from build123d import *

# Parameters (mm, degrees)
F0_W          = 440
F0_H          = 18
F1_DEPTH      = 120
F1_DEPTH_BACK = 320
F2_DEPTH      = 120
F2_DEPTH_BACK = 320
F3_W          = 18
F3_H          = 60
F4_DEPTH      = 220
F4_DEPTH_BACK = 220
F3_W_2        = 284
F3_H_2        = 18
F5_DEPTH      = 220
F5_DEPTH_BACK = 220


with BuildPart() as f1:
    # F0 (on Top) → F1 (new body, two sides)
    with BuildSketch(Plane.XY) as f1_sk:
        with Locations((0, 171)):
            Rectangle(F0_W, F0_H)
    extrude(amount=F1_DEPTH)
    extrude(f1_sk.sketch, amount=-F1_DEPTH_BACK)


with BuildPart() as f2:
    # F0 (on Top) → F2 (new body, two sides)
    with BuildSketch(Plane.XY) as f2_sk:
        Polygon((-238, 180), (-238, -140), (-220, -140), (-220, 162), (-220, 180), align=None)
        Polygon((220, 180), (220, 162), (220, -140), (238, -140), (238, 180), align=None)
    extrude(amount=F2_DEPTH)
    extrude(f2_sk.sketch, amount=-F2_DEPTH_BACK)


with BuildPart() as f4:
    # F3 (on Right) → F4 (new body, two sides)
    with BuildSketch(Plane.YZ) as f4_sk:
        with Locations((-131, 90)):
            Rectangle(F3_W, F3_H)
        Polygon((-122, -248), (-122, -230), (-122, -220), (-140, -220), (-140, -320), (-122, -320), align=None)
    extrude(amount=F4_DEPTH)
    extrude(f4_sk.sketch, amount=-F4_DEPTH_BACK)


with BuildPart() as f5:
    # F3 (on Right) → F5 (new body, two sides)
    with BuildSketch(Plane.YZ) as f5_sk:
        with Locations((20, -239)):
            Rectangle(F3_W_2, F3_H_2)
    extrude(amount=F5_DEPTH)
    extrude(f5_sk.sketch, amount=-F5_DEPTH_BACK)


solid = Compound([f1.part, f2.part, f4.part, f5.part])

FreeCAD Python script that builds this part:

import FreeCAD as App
import Part
import Sketcher

V = App.Vector
Q = App.Units.Quantity

doc = App.newDocument("Part")
body = doc.addObject("PartDesign::Body", "Body")

sketch1 = body.newObject("Sketcher::SketchObject", "Sketch")
sketch1.AttachmentSupport = (doc.getObject("XY_Plane"), [""])
sketch1.MapMode = "FlatFace"
sketch1.addGeometry(Part.LineSegment(V(-220, 180, 0), V(-220, 162, 0)), False)
sketch1.addGeometry(Part.LineSegment(V(-220, 162, 0), V(220, 162, 0)), False)
sketch1.addGeometry(Part.LineSegment(V(220, 162, 0), V(220, 180, 0)), False)
sketch1.addGeometry(Part.LineSegment(V(220, 180, 0), V(-220, 180, 0)), False)
sketch1.addConstraint(Sketcher.Constraint("Coincident", 0, 2, 1, 1))
sketch1.addConstraint(Sketcher.Constraint("Coincident", 1, 2, 2, 1))
sketch1.addConstraint(Sketcher.Constraint("Coincident", 2, 2, 3, 1))
sketch1.addConstraint(Sketcher.Constraint("Coincident", 3, 2, 0, 1))
sketch1.addConstraint(Sketcher.Constraint("Vertical", 0))
sketch1.addConstraint(Sketcher.Constraint("Horizontal", 1))
sketch1.addConstraint(Sketcher.Constraint("Vertical", 2))
sketch1.addConstraint(Sketcher.Constraint("Horizontal", 3))
sketch1.addConstraint(Sketcher.Constraint("DistanceX", 1, 1, 1, 2, Q("440 mm")))
sketch1.addConstraint(Sketcher.Constraint("DistanceY", 0, 2, 0, 1, Q("18 mm")))
sketch1.addConstraint(Sketcher.Constraint("DistanceX", 0, 2, -1, 1, Q("220 mm")))
sketch1.addConstraint(Sketcher.Constraint("DistanceY", -1, 1, 0, 2, Q("162 mm")))
pad1 = body.newObject("PartDesign::Pad", "Pad")
pad1.Profile = sketch1
pad1.Type = "TwoLengths"
pad1.Length = 120
pad1.Length2 = 320
body2 = doc.addObject("PartDesign::Body", "Body001")
body2.AllowCompound = True

sketch2 = body2.newObject("Sketcher::SketchObject", "Sketch001")
sketch2.AttachmentSupport = (doc.getObject("XY_Plane001"), [""])
sketch2.MapMode = "FlatFace"
sketch2.addGeometry(Part.LineSegment(V(-238, 180, 0), V(-238, -140, 0)), False)
sketch2.addGeometry(Part.LineSegment(V(-238, -140, 0), V(-220, -140, 0)), False)
sketch2.addGeometry(Part.LineSegment(V(-220, -140, 0), V(-220, 180, 0)), False)
sketch2.addGeometry(Part.LineSegment(V(-220, 180, 0), V(-238, 180, 0)), False)
sketch2.addGeometry(Part.LineSegment(V(220, 180, 0), V(220, -140, 0)), False)
sketch2.addGeometry(Part.LineSegment(V(220, -140, 0), V(238, -140, 0)), False)
sketch2.addGeometry(Part.LineSegment(V(238, -140, 0), V(238, 180, 0)), False)
sketch2.addGeometry(Part.LineSegment(V(238, 180, 0), V(220, 180, 0)), False)
sketch2.addConstraint(Sketcher.Constraint("Coincident", 0, 2, 1, 1))
sketch2.addConstraint(Sketcher.Constraint("Coincident", 1, 2, 2, 1))
sketch2.addConstraint(Sketcher.Constraint("Coincident", 2, 2, 3, 1))
sketch2.addConstraint(Sketcher.Constraint("Coincident", 3, 2, 0, 1))
sketch2.addConstraint(Sketcher.Constraint("Coincident", 4, 2, 5, 1))
sketch2.addConstraint(Sketcher.Constraint("Coincident", 5, 2, 6, 1))
sketch2.addConstraint(Sketcher.Constraint("Coincident", 6, 2, 7, 1))
sketch2.addConstraint(Sketcher.Constraint("Coincident", 7, 2, 4, 1))
sketch2.addConstraint(Sketcher.Constraint("Vertical", 0))
sketch2.addConstraint(Sketcher.Constraint("Horizontal", 1))
sketch2.addConstraint(Sketcher.Constraint("Vertical", 2))
sketch2.addConstraint(Sketcher.Constraint("Horizontal", 3))
sketch2.addConstraint(Sketcher.Constraint("Vertical", 4))
sketch2.addConstraint(Sketcher.Constraint("Horizontal", 5))
sketch2.addConstraint(Sketcher.Constraint("Vertical", 6))
sketch2.addConstraint(Sketcher.Constraint("Horizontal", 7))
sketch2.addConstraint(Sketcher.Constraint("Symmetric", 1, 2, 4, 2, -2))
sketch2.addConstraint(Sketcher.Constraint("Symmetric", 3, 2, 6, 2, -2))
sketch2.addConstraint(Sketcher.Constraint("DistanceX", 1, 1, 1, 2, Q("18 mm")))
sketch2.addConstraint(Sketcher.Constraint("DistanceY", 0, 2, 0, 1, Q("320 mm")))
sketch2.addConstraint(Sketcher.Constraint("DistanceX", 0, 2, -1, 1, Q("238 mm")))
sketch2.addConstraint(Sketcher.Constraint("DistanceY", 0, 2, -1, 1, Q("140 mm")))
pad2 = body2.newObject("PartDesign::Pad", "Pad001")
pad2.Profile = sketch2
pad2.Type = "TwoLengths"
pad2.Length = 120
pad2.Length2 = 320
body3 = doc.addObject("PartDesign::Body", "Body002")
body3.AllowCompound = True

sketch3 = body3.newObject("Sketcher::SketchObject", "Sketch002")
sketch3.AttachmentSupport = (doc.getObject("YZ_Plane002"), [""])
sketch3.MapMode = "FlatFace"
sketch3.addGeometry(Part.LineSegment(V(-140, 120, 0), V(-140, 60, 0)), False)
sketch3.addGeometry(Part.LineSegment(V(-140, 60, 0), V(-122, 60, 0)), False)
sketch3.addGeometry(Part.LineSegment(V(-122, 60, 0), V(-122, 120, 0)), False)
sketch3.addGeometry(Part.LineSegment(V(-122, 120, 0), V(-140, 120, 0)), False)
sketch3.addGeometry(Part.LineSegment(V(-122, -220, 0), V(-140, -220, 0)), False)
sketch3.addGeometry(Part.LineSegment(V(-140, -220, 0), V(-140, -320, 0)), False)
sketch3.addGeometry(Part.LineSegment(V(-140, -320, 0), V(-122, -320, 0)), False)
sketch3.addGeometry(Part.LineSegment(V(-122, -320, 0), V(-122, -220, 0)), False)
sketch3.addConstraint(Sketcher.Constraint("Coincident", 0, 2, 1, 1))
sketch3.addConstraint(Sketcher.Constraint("Coincident", 1, 2, 2, 1))
sketch3.addConstraint(Sketcher.Constraint("Coincident", 2, 2, 3, 1))
sketch3.addConstraint(Sketcher.Constraint("Coincident", 3, 2, 0, 1))
sketch3.addConstraint(Sketcher.Constraint("Coincident", 4, 2, 5, 1))
sketch3.addConstraint(Sketcher.Constraint("Coincident", 5, 2, 6, 1))
sketch3.addConstraint(Sketcher.Constraint("Coincident", 6, 2, 7, 1))
sketch3.addConstraint(Sketcher.Constraint("Coincident", 7, 2, 4, 1))
sketch3.addConstraint(Sketcher.Constraint("Vertical", 0))
sketch3.addConstraint(Sketcher.Constraint("Horizontal", 1))
sketch3.addConstraint(Sketcher.Constraint("Vertical", 2))
sketch3.addConstraint(Sketcher.Constraint("Horizontal", 3))
sketch3.addConstraint(Sketcher.Constraint("Horizontal", 4))
sketch3.addConstraint(Sketcher.Constraint("Vertical", 5))
sketch3.addConstraint(Sketcher.Constraint("Horizontal", 6))
sketch3.addConstraint(Sketcher.Constraint("Vertical", 7))
sketch3.addConstraint(Sketcher.Constraint("Vertical", 3, 2, 4, 2))
sketch3.addConstraint(Sketcher.Constraint("Vertical", 2, 2, 6, 2))
sketch3.addConstraint(Sketcher.Constraint("DistanceX", 1, 1, 1, 2, Q("18 mm")))
sketch3.addConstraint(Sketcher.Constraint("DistanceY", 0, 2, 0, 1, Q("60 mm")))
sketch3.addConstraint(Sketcher.Constraint("DistanceY", 5, 2, 5, 1, Q("100 mm")))
sketch3.addConstraint(Sketcher.Constraint("DistanceX", 0, 2, -1, 1, Q("140 mm")))
sketch3.addConstraint(Sketcher.Constraint("DistanceY", -1, 1, 0, 2, Q("60 mm")))
sketch3.addConstraint(Sketcher.Constraint("DistanceY", 4, 2, -1, 1, Q("220 mm")))
pad3 = body3.newObject("PartDesign::Pad", "Pad002")
pad3.Profile = sketch3
pad3.Type = "TwoLengths"
pad3.Length = 220
pad3.Length2 = 220
body4 = doc.addObject("PartDesign::Body", "Body003")

sketch4 = body4.newObject("Sketcher::SketchObject", "Sketch003")
sketch4.AttachmentSupport = (doc.getObject("YZ_Plane003"), [""])
sketch4.MapMode = "FlatFace"
sketch4.addGeometry(Part.LineSegment(V(-122, -230, 0), V(-122, -248, 0)), False)
sketch4.addGeometry(Part.LineSegment(V(-122, -248, 0), V(162, -248, 0)), False)
sketch4.addGeometry(Part.LineSegment(V(162, -248, 0), V(162, -230, 0)), False)
sketch4.addGeometry(Part.LineSegment(V(162, -230, 0), V(-122, -230, 0)), False)
sketch4.addConstraint(Sketcher.Constraint("Coincident", 0, 2, 1, 1))
sketch4.addConstraint(Sketcher.Constraint("Coincident", 1, 2, 2, 1))
sketch4.addConstraint(Sketcher.Constraint("Coincident", 2, 2, 3, 1))
sketch4.addConstraint(Sketcher.Constraint("Coincident", 3, 2, 0, 1))
sketch4.addConstraint(Sketcher.Constraint("Vertical", 0))
sketch4.addConstraint(Sketcher.Constraint("Horizontal", 1))
sketch4.addConstraint(Sketcher.Constraint("Vertical", 2))
sketch4.addConstraint(Sketcher.Constraint("Horizontal", 3))
sketch4.addConstraint(Sketcher.Constraint("DistanceX", 1, 1, 1, 2, Q("284 mm")))
sketch4.addConstraint(Sketcher.Constraint("DistanceY", 0, 2, 0, 1, Q("18 mm")))
sketch4.addConstraint(Sketcher.Constraint("DistanceX", 0, 2, -1, 1, Q("122 mm")))
sketch4.addConstraint(Sketcher.Constraint("DistanceY", 0, 2, -1, 1, Q("248 mm")))
pad4 = body4.newObject("PartDesign::Pad", "Pad003")
pad4.Profile = sketch4
pad4.Type = "TwoLengths"
pad4.Length = 220
pad4.Length2 = 220

doc.recompute()
